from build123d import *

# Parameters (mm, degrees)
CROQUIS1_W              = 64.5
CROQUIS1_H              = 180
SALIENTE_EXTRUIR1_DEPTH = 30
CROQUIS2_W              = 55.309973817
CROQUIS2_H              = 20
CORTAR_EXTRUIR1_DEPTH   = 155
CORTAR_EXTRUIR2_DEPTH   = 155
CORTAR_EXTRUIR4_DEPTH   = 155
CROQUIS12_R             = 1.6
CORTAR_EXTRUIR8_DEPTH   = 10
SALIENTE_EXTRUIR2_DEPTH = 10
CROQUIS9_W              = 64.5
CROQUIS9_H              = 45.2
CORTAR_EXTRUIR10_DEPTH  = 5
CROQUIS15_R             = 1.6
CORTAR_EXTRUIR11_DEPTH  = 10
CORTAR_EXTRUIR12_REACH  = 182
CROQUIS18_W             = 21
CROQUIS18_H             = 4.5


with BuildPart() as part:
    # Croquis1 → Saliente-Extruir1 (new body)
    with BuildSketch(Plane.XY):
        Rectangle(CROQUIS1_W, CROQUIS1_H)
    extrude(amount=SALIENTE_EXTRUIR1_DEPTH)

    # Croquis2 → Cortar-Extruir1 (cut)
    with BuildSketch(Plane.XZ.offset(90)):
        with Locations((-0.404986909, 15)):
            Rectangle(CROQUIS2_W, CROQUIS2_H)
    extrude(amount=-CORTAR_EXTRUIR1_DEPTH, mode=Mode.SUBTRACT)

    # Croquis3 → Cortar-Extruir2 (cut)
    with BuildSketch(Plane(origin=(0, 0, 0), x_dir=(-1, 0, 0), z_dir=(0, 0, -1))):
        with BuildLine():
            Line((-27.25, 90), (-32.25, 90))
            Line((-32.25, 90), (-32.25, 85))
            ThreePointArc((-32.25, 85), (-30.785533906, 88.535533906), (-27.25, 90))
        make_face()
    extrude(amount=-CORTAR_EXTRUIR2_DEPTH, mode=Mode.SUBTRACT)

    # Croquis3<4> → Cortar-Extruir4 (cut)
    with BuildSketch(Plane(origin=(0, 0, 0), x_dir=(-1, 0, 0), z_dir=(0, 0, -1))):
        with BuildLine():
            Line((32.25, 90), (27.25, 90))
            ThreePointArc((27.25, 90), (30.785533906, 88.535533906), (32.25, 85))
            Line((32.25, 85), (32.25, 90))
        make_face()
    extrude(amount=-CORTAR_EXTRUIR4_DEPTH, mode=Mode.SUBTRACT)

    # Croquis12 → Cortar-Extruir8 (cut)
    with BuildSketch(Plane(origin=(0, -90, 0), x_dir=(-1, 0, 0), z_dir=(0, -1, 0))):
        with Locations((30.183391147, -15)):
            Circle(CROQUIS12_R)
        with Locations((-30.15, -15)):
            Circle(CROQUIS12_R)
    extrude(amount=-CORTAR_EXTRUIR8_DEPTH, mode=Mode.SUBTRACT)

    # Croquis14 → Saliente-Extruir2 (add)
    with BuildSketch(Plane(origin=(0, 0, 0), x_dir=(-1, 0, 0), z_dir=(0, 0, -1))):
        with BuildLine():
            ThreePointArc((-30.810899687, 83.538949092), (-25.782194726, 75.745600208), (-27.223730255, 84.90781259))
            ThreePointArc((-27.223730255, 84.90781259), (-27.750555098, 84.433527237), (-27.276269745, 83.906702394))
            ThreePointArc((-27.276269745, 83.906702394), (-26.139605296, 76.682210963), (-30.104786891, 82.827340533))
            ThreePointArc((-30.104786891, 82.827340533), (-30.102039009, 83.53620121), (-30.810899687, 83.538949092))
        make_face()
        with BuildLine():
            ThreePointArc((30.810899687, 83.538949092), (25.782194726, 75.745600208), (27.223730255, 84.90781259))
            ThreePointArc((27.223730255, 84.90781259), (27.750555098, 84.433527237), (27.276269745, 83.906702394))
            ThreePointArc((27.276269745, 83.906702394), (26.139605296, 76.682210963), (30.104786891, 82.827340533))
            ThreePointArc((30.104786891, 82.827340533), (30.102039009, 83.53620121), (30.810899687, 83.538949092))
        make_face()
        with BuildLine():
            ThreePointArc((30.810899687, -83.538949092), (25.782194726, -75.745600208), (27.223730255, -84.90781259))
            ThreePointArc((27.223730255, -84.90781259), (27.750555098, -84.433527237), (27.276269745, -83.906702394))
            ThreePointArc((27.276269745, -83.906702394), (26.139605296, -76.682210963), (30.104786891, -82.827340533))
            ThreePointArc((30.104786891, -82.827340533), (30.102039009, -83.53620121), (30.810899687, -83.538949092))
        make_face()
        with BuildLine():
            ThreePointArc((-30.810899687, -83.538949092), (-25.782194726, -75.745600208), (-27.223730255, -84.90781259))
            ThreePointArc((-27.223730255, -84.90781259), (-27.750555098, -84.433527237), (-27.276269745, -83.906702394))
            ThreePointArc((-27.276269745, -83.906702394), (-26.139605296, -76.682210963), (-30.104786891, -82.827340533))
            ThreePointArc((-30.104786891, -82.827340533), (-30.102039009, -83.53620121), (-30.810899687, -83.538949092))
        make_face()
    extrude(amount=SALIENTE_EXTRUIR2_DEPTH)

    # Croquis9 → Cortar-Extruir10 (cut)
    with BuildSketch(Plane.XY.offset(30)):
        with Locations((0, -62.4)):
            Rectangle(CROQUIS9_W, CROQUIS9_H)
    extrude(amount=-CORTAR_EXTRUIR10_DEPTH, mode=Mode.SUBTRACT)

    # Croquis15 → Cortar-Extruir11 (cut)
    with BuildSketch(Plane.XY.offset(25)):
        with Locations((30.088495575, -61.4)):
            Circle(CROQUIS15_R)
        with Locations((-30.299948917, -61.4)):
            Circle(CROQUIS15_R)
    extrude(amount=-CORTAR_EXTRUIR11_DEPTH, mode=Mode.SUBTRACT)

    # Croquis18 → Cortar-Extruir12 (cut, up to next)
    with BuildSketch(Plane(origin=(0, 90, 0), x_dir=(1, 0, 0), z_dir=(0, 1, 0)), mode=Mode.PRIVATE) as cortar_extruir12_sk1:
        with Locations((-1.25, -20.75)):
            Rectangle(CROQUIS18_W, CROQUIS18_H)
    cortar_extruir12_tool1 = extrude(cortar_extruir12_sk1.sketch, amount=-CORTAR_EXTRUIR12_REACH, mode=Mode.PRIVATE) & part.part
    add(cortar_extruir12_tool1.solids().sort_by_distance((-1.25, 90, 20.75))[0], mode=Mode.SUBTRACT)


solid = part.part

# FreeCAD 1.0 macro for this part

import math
import FreeCAD as App
import Part
import Sketcher
from FreeCAD import Vector

doc = App.newDocument("Part")
body = doc.addObject("PartDesign::Body", "Body")

# Sketch on XY plane
sketch1 = body.newObject("Sketcher::SketchObject", "Sketch")
sketch1.AttachmentSupport = (doc.getObject("XY_Plane"), [""])
sketch1.MapMode = "FlatFace"
sketch1.addGeometry([
    Part.LineSegment(Vector(-32, 90, 0), Vector(-32, -90, 0)),
    Part.LineSegment(Vector(-32, -90, 0), Vector(32, -90, 0)),
    Part.LineSegment(Vector(32, -90, 0), Vector(32, 90, 0)),
    Part.LineSegment(Vector(32, 90, 0), Vector(-32, 90, 0)),
], False)
sketch1.addConstraint([
    Sketcher.Constraint("Coincident", 0, 2, 1, 1),
    Sketcher.Constraint("Coincident", 1, 2, 2, 1),
    Sketcher.Constraint("Coincident", 2, 2, 3, 1),
    Sketcher.Constraint("Coincident", 3, 2, 0, 1),
    Sketcher.Constraint("Vertical", 0),
    Sketcher.Constraint("Horizontal", 1),
    Sketcher.Constraint("Vertical", 2),
    Sketcher.Constraint("Horizontal", 3),
    Sketcher.Constraint("Symmetric", 0, 2, 2, 2, -1, 1),
    Sketcher.Constraint("DistanceY", 0, 2, 0, 1, 180.0),
    Sketcher.Constraint("DistanceX", 1, 1, 1, 2, 64.5),
])
pad1 = body.newObject("PartDesign::Pad", "Pad")
pad1.Profile = sketch1
pad1.Length = 30

# Sketch on XZ plane
sketch2 = body.newObject("Sketcher::SketchObject", "Sketch001")
sketch2.AttachmentSupport = (doc.getObject("XZ_Plane"), [""])
sketch2.MapMode = "FlatFace"
sketch2.AttachmentOffset = App.Placement(Vector(0, 0, 90), App.Rotation())
sketch2.addGeometry([
    Part.LineSegment(Vector(-28, 25, 0), Vector(-28, 5, 0)),
    Part.LineSegment(Vector(-28, 5, 0), Vector(27, 5, 0)),
    Part.LineSegment(Vector(27, 5, 0), Vector(27, 25, 0)),
    Part.LineSegment(Vector(27, 25, 0), Vector(-28, 25, 0)),
], False)
sketch2.addConstraint([
    Sketcher.Constraint("Coincident", 0, 2, 1, 1),
    Sketcher.Constraint("Coincident", 1, 2, 2, 1),
    Sketcher.Constraint("Coincident", 2, 2, 3, 1),
    Sketcher.Constraint("Coincident", 3, 2, 0, 1),
    Sketcher.Constraint("Vertical", 0),
    Sketcher.Constraint("Horizontal", 1),
    Sketcher.Constraint("Vertical", 2),
    Sketcher.Constraint("Horizontal", 3),
    Sketcher.Constraint("DistanceY", 0, 2, 0, 1, 20.0),
    Sketcher.Constraint("DistanceY", -1, 1, 0, 2, 5.0),
    Sketcher.Constraint("DistanceX", -1, 1, 1, 2, 27.25),
    Sketcher.Constraint("DistanceX", 1, 1, 1, 2, 55.309974),
])
pocket1 = body.newObject("PartDesign::Pocket", "Pocket")
pocket1.Profile = sketch2
pocket1.Length = 155

# Sketch on XY plane
sketch3 = body.newObject("Sketcher::SketchObject", "Sketch002")
sketch3.AttachmentSupport = (doc.getObject("XY_Plane"), [""])
sketch3.MapMode = "FlatFace"
sketch3.addGeometry([
    Part.LineSegment(Vector(27, 90, 0), Vector(32, 90, 0)),
    Part.LineSegment(Vector(32, 90, 0), Vector(32, 85, 0)),
    Part.ArcOfCircle(Part.Circle(Vector(27, 85, 0), Vector(0, 0, 1), 5), math.radians(0), math.radians(90)),
], False)
sketch3.addConstraint([
    Sketcher.Constraint("Coincident", 0, 2, 1, 1),
    Sketcher.Constraint("Tangent", 1, 2, 2, 1),
    Sketcher.Constraint("Tangent", 2, 2, 0, 1),
    Sketcher.Constraint("Horizontal", 0),
    Sketcher.Constraint("Vertical", 1),
    Sketcher.Constraint("Radius", 2, 5.0),
    Sketcher.Constraint("DistanceY", -1, 1, 2, 3, 85.0),
    Sketcher.Constraint("DistanceX", -1, 1, 2, 3, 27.25),
])
pocket2 = body.newObject("PartDesign::Pocket", "Pocket001")
pocket2.Profile = sketch3
pocket2.Length = 155
pocket2.Reversed = True

# Sketch on XY plane
sketch4 = body.newObject("Sketcher::SketchObject", "Sketch003")
sketch4.AttachmentSupport = (doc.getObject("XY_Plane"), [""])
sketch4.MapMode = "FlatFace"
sketch4.addGeometry([
    Part.LineSegment(Vector(-32, 90, 0), Vector(-27, 90, 0)),
    Part.ArcOfCircle(Part.Circle(Vector(-27, 85, 0), Vector(0, 0, 1), 5), math.radians(90), math.radians(180)),
    Part.LineSegment(Vector(-32, 85, 0), Vector(-32, 90, 0)),
], False)
sketch4.addConstraint([
    Sketcher.Constraint("Tangent", 0, 2, 1, 1),
    Sketcher.Constraint("Tangent", 1, 2, 2, 1),
    Sketcher.Constraint("Coincident", 2, 2, 0, 1),
    Sketcher.Constraint("Horizontal", 0),
    Sketcher.Constraint("Vertical", 2),
    Sketcher.Constraint("Radius", 1, 5.0),
    Sketcher.Constraint("DistanceY", -1, 1, 1, 3, 85.0),
    Sketcher.Constraint("DistanceX", 1, 3, -1, 1, 27.25),
])
pocket3 = body.newObject("PartDesign::Pocket", "Pocket002")
pocket3.Profile = sketch4
pocket3.Length = 155
pocket3.Reversed = True

# Sketch on XZ plane
sketch5 = body.newObject("Sketcher::SketchObject", "Sketch004")
sketch5.AttachmentSupport = (doc.getObject("XZ_Plane"), [""])
sketch5.MapMode = "FlatFace"
sketch5.AttachmentOffset = App.Placement(Vector(0, 0, 90), App.Rotation())
sketch5.addGeometry([
    Part.Circle(Vector(-30.2, 15, 0), Vector(0, 0, 1), 1.6),
    Part.Circle(Vector(30.1, 15, 0), Vector(0, 0, 1), 1.6),
], False)
sketch5.addConstraint([
    Sketcher.Constraint("Equal", 0, 1),
    Sketcher.Constraint("Horizontal", 0, 3, 1, 3),
    Sketcher.Constraint("Diameter", 0, 3.2),
    Sketcher.Constraint("DistanceY", -1, 1, 0, 3, 15.0),
    Sketcher.Constraint("DistanceX", -1, 1, 1, 3, 30.15),
    Sketcher.Constraint("DistanceX", 0, 3, -1, 1, 30.183391),
])
pocket4 = body.newObject("PartDesign::Pocket", "Pocket003")
pocket4.Profile = sketch5
pocket4.Length = 10

# Sketch on XY plane
sketch6 = body.newObject("Sketcher::SketchObject", "Sketch005")
sketch6.AttachmentSupport = (doc.getObject("XY_Plane"), [""])
sketch6.MapMode = "FlatFace"
sketch6.addGeometry([
    Part.ArcOfCircle(Part.Circle(Vector(27.5, 80.2, 0), Vector(0, 0, 1), 4.7), math.radians(93), math.radians(405)),  # 0
    Part.ArcOfCircle(Part.Circle(Vector(27.2, 84.4, 0), Vector(0, 0, 1), 0.5), math.radians(-87), math.radians(93)),  # 1
    Part.ArcOfCircle(Part.Circle(Vector(27.5, 80.2, 0), Vector(0, 0, 1), 3.7), math.radians(93), math.radians(405)),  # 2
    Part.ArcOfCircle(Part.Circle(Vector(30.5, 83.2, 0), Vector(0, 0, 1), 0.5), math.radians(45), math.radians(225)),  # 3
    Part.ArcOfCircle(Part.Circle(Vector(-27.5, 80.2, 0), Vector(0, 0, 1), 4.7), math.radians(135), math.radians(447)),  # 4
    Part.ArcOfCircle(Part.Circle(Vector(-30.5, 83.2, 0), Vector(0, 0, 1), 0.5), math.radians(-45), math.radians(135)),  # 5
    Part.ArcOfCircle(Part.Circle(Vector(-27.5, 80.2, 0), Vector(0, 0, 1), 3.7), math.radians(135), math.radians(447)),  # 6
    Part.ArcOfCircle(Part.Circle(Vector(-27.2, 84.4, 0), Vector(0, 0, 1), 0.5), math.radians(87), math.radians(267)),  # 7
    Part.ArcOfCircle(Part.Circle(Vector(-27.5, -80.2, 0), Vector(0, 0, 1), 4.7), math.radians(-87), math.radians(225)),  # 8
    Part.ArcOfCircle(Part.Circle(Vector(-27.2, -84.4, 0), Vector(0, 0, 1), 0.5), math.radians(93), math.radians(273)),  # 9
    Part.ArcOfCircle(Part.Circle(Vector(-27.5, -80.2, 0), Vector(0, 0, 1), 3.7), math.radians(-87), math.radians(225)),  # 10
    Part.ArcOfCircle(Part.Circle(Vector(-30.5, -83.2, 0), Vector(0, 0, 1), 0.5), math.radians(-135), math.radians(45)),  # 11
    Part.ArcOfCircle(Part.Circle(Vector(27.5, -80.2, 0), Vector(0, 0, 1), 4.7), math.radians(-45), math.radians(267)),  # 12
    Part.ArcOfCircle(Part.Circle(Vector(30.5, -83.2, 0), Vector(0, 0, 1), 0.5), math.radians(135), math.radians(315)),  # 13
    Part.ArcOfCircle(Part.Circle(Vector(27.5, -80.2, 0), Vector(0, 0, 1), 3.7), math.radians(-45), math.radians(267)),  # 14
    Part.ArcOfCircle(Part.Circle(Vector(27.2, -84.4, 0), Vector(0, 0, 1), 0.5), math.radians(-93), math.radians(87)),  # 15
], False)
sketch6.addConstraint([
    Sketcher.Constraint("Tangent", 0, 1, 1, 2),
    Sketcher.Constraint("Tangent", 1, 1, 2, 1),
    Sketcher.Constraint("Tangent", 2, 2, 3, 2),
    Sketcher.Constraint("Tangent", 3, 1, 0, 2),
    Sketcher.Constraint("Tangent", 4, 1, 5, 2),
    Sketcher.Constraint("Tangent", 5, 1, 6, 1),
    Sketcher.Constraint("Tangent", 6, 2, 7, 2),
    Sketcher.Constraint("Tangent", 7, 1, 4, 2),
    Sketcher.Constraint("Tangent", 8, 1, 9, 2),
    Sketcher.Constraint("Tangent", 9, 1, 10, 1),
    Sketcher.Constraint("Tangent", 10, 2, 11, 2),
    Sketcher.Constraint("Tangent", 11, 1, 8, 2),
    Sketcher.Constraint("Tangent", 12, 1, 13, 2),
    Sketcher.Constraint("Tangent", 13, 1, 14, 1),
    Sketcher.Constraint("Tangent", 14, 2, 15, 2),
    Sketcher.Constraint("Tangent", 15, 1, 12, 2),
    Sketcher.Constraint("Coincident", 2, 3, 0, 3),
    Sketcher.Constraint("Coincident", 6, 3, 4, 3),
    Sketcher.Constraint("Coincident", 10, 3, 8, 3),
    Sketcher.Constraint("Coincident", 14, 3, 12, 3),
    Sketcher.Constraint("Equal", 0, 4),
    Sketcher.Constraint("Equal", 3, 5),
    Sketcher.Constraint("Equal", 4, 8),
    Sketcher.Constraint("Equal", 7, 9),
    Sketcher.Constraint("Equal", 8, 12),
    Sketcher.Constraint("Equal", 11, 13),
    Sketcher.Constraint("Symmetric", 0, 3, 8, 3, -1, 1),
    Sketcher.Constraint("Symmetric", 4, 3, 12, 3, -1, 1),
    Sketcher.Constraint("Symmetric", 0, 3, 4, 3, -2),
    Sketcher.Constraint("Horizontal", 3, 3, 5, 3),
    Sketcher.Constraint("Horizontal", 1, 3, 7, 3),
    Sketcher.Constraint("Horizontal", 11, 3, 13, 3),
    Sketcher.Constraint("Horizontal", 9, 3, 15, 3),
    Sketcher.Constraint("Vertical", 7, 3, 9, 3),
    Sketcher.Constraint("Vertical", 5, 3, 11, 3),
    Sketcher.Constraint("DistanceX", 7, 3, 1, 3, 54.5),
    Sketcher.Constraint("Radius", 0, 4.740108),
    Sketcher.Constraint("Radius", 2, 3.73762),
    Sketcher.Constraint("DistanceX", 4, 3, 3, 3, 57.929998),
    Sketcher.Constraint("DistanceX", -1, 1, 3, 1, 30.8109),
    Sketcher.Constraint("DistanceY", -1, 1, 0, 3, 80.174219),
])
pad2 = body.newObject("PartDesign::Pad", "Pad001")
pad2.Profile = sketch6
pad2.Length = 10
pad2.Reversed = True

# Sketch on XY plane
sketch7 = body.newObject("Sketcher::SketchObject", "Sketch006")
sketch7.AttachmentSupport = (doc.getObject("XY_Plane"), [""])
sketch7.MapMode = "FlatFace"
sketch7.AttachmentOffset = App.Placement(Vector(0, 0, 30), App.Rotation())
sketch7.addGeometry([
    Part.LineSegment(Vector(-32, -40, 0), Vector(-32, -85, 0)),
    Part.LineSegment(Vector(-32, -85, 0), Vector(32, -85, 0)),
    Part.LineSegment(Vector(32, -85, 0), Vector(32, -40, 0)),
    Part.LineSegment(Vector(32, -40, 0), Vector(-32, -40, 0)),
], False)
sketch7.addConstraint([
    Sketcher.Constraint("Coincident", 0, 2, 1, 1),
    Sketcher.Constraint("Coincident", 1, 2, 2, 1),
    Sketcher.Constraint("Coincident", 2, 2, 3, 1),
    Sketcher.Constraint("Coincident", 3, 2, 0, 1),
    Sketcher.Constraint("Vertical", 0),
    Sketcher.Constraint("Horizontal", 1),
    Sketcher.Constraint("Vertical", 2),
    Sketcher.Constraint("Horizontal", 3),
    Sketcher.Constraint("DistanceX", 1, 1, 1, 2, 64.5),
    Sketcher.Constraint("DistanceY", 0, 2, 0, 1, 45.2),
    Sketcher.Constraint("DistanceY", 0, 2, -1, 1, 85.0),
    Sketcher.Constraint("DistanceX", 0, 2, -1, 1, 32.25),
])
pocket5 = body.newObject("PartDesign::Pocket", "Pocket004")
pocket5.Profile = sketch7
pocket5.Length = 5

# Sketch on XY plane
sketch8 = body.newObject("Sketcher::SketchObject", "Sketch007")
sketch8.AttachmentSupport = (doc.getObject("XY_Plane"), [""])
sketch8.MapMode = "FlatFace"
sketch8.AttachmentOffset = App.Placement(Vector(0, 0, 25), App.Rotation())
sketch8.addGeometry([
    Part.Circle(Vector(30.1, -61.4, 0), Vector(0, 0, 1), 1.6),
    Part.Circle(Vector(-30.3, -61.4, 0), Vector(0, 0, 1), 1.6),
], False)
sketch8.addConstraint([
    Sketcher.Constraint("Equal", 0, 1),
    Sketcher.Constraint("Horizontal", 0, 3, 1, 3),
    Sketcher.Constraint("Diameter", 0, 3.2),
    Sketcher.Constraint("DistanceY", 0, 3, -1, 1, 61.4),
    Sketcher.Constraint("DistanceX", 1, 3, -1, 1, 30.299949),
    Sketcher.Constraint("DistanceX", -1, 1, 0, 3, 30.088496),
])
pocket6 = body.newObject("PartDesign::Pocket", "Pocket005")
pocket6.Profile = sketch8
pocket6.Length = 10

# Sketch on XZ plane
sketch9 = body.newObject("Sketcher::SketchObject", "Sketch008")
sketch9.AttachmentSupport = (doc.getObject("XZ_Plane"), [""])
sketch9.MapMode = "FlatFace"
sketch9.AttachmentOffset = App.Placement(Vector(0, 0, -90), App.Rotation())
sketch9.addGeometry([
    Part.LineSegment(Vector(-11.8, 18.5, 0), Vector(-11.8, 23, 0)),
    Part.LineSegment(Vector(-11.8, 23, 0), Vector(9.2, 23, 0)),
    Part.LineSegment(Vector(9.2, 23, 0), Vector(9.2, 18.5, 0)),
    Part.LineSegment(Vector(9.2, 18.5, 0), Vector(-11.8, 18.5, 0)),
], False)
sketch9.addConstraint([
    Sketcher.Constraint("Coincident", 0, 2, 1, 1),
    Sketcher.Constraint("Coincident", 1, 2, 2, 1),
    Sketcher.Constraint("Coincident", 2, 2, 3, 1),
    Sketcher.Constraint("Coincident", 3, 2, 0, 1),
    Sketcher.Constraint("Vertical", 0),
    Sketcher.Constraint("Horizontal", 1),
    Sketcher.Constraint("Vertical", 2),
    Sketcher.Constraint("Horizontal", 3),
    Sketcher.Constraint("DistanceX", 1, 1, 1, 2, 21.0),
    Sketcher.Constraint("DistanceY", 0, 1, 0, 2, 4.5),
    Sketcher.Constraint("DistanceY", -1, 1, 0, 2, 23.0),
    Sketcher.Constraint("DistanceX", 0, 2, -1, 1, 11.75),
])
pocket7 = body.newObject("PartDesign::Pocket", "Pocket006")
pocket7.Profile = sketch9
pocket7.Type = "UpToFirst"
pocket7.Reversed = True

doc.recompute()
